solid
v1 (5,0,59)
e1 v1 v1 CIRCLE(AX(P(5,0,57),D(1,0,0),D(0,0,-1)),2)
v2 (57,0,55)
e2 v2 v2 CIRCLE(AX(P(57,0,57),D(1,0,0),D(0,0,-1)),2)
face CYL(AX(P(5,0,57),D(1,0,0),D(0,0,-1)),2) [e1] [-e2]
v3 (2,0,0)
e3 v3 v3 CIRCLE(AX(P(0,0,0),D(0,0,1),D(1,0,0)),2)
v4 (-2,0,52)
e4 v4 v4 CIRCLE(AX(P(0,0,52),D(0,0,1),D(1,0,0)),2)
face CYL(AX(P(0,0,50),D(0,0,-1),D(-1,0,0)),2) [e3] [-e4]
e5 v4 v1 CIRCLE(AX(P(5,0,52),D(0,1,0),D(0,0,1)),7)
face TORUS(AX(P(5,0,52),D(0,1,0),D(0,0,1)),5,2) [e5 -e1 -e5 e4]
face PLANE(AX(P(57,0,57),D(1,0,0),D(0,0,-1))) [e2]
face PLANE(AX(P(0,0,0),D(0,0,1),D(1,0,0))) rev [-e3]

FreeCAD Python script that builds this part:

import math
import FreeCAD as App
import Part
import Sketcher

doc = App.newDocument("Part")
params = doc.addObject("Spreadsheet::Sheet", "Params")
for row, (alias, value) in enumerate([
    ("sketch1_diameter", "4 mm"),
    ("pad1_length", "50 mm"),
    ("sketch2_diameter", "4 mm"),
    ("sketch3_radius", "5 mm"),
    ("sketch3_width", "52 mm"),
    ("sketch3_height", "2 mm"),
], start=1):
    params.set(f"A{row}", alias)
    params.set(f"B{row}", "=" + value)
    params.setAlias(f"B{row}", alias)

body = doc.addObject("PartDesign::Body", "Body")

# Sketch on XY plane
sketch1 = body.newObject("Sketcher::SketchObject", "Sketch")
sketch1.AttachmentSupport = (doc.getObject("XY_Plane"), [""])
sketch1.MapMode = "FlatFace"
sketch1.addGeometry(Part.Circle(App.Vector(0, 0, 0), App.Vector(0, 0, 1), 2), False)
sketch1.addConstraint([
    Sketcher.Constraint("Coincident", 0, 3, -1, 1),
    Sketcher.Constraint("Diameter", 0, 4.0),
])
sketch1.setExpression("Constraints[1]", "Params.sketch1_diameter")
pad1 = body.newObject("PartDesign::Pad", "Pad")
pad1.Profile = sketch1
pad1.setExpression("Length", "Params.pad1_length")

# Sketch on XY plane
sketch2 = body.newObject("Sketcher::SketchObject", "Sketch001")
sketch2.AttachmentSupport = (doc.getObject("XY_Plane"), [""])
sketch2.MapMode = "FlatFace"
sketch2.AttachmentOffset = App.Placement(App.Vector(0, 0, 50), App.Rotation())
sketch2.addGeometry(Part.Circle(App.Vector(0, 0, 0), App.Vector(0, 0, 1), 2), False)
sketch2.addConstraint([
    Sketcher.Constraint("Coincident", 0, 3, -1, 1),
    Sketcher.Constraint("Diameter", 0, 4.0),
])
sketch2.setExpression("Constraints[1]", "Params.sketch2_diameter")

# Sketch on XZ plane
sketch3 = body.newObject("Sketcher::SketchObject", "Sketch002")
sketch3.AttachmentSupport = (doc.getObject("XZ_Plane"), [""])
sketch3.MapMode = "FlatFace"
sketch3.addGeometry([
    Part.LineSegment(App.Vector(0, 50, 0), App.Vector(0, 52, 0)),
    Part.ArcOfCircle(Part.Circle(App.Vector(5, 52, 0), App.Vector(0, 0, 1), 5), math.radians(90), math.radians(180)),
    Part.LineSegment(App.Vector(5, 57, 0), App.Vector(57, 57, 0)),
], False)
sketch3.addConstraint([
    Sketcher.Constraint("Tangent", 0, 2, 1, 2),
    Sketcher.Constraint("Tangent", 1, 1, 2, 1),
    Sketcher.Constraint("Vertical", 0),
    Sketcher.Constraint("Horizontal", 2),
    Sketcher.Constraint("PointOnObject", 0, 1, -2),
    Sketcher.Constraint("Radius", 1, 5.0),
    Sketcher.Constraint("DistanceX", 2, 1, 2, 2, 52.0),
    Sketcher.Constraint("DistanceY", 0, 1, 0, 2, 2.0),
    Sketcher.Constraint("DistanceY", -1, 1, 1, 3, 52.0),
])
sketch3.setExpression("Constraints[5]", "Params.sketch3_radius")
sketch3.setExpression("Constraints[6]", "Params.sketch3_width")
sketch3.setExpression("Constraints[7]", "Params.sketch3_height")
doc.recompute()

additivepipe = body.newObject("PartDesign::AdditivePipe", "AdditivePipe")
additivepipe.Profile = sketch2
additivepipe.Spine = (sketch3, ["Edge1", "Edge2", "Edge3"])

doc.recompute()
